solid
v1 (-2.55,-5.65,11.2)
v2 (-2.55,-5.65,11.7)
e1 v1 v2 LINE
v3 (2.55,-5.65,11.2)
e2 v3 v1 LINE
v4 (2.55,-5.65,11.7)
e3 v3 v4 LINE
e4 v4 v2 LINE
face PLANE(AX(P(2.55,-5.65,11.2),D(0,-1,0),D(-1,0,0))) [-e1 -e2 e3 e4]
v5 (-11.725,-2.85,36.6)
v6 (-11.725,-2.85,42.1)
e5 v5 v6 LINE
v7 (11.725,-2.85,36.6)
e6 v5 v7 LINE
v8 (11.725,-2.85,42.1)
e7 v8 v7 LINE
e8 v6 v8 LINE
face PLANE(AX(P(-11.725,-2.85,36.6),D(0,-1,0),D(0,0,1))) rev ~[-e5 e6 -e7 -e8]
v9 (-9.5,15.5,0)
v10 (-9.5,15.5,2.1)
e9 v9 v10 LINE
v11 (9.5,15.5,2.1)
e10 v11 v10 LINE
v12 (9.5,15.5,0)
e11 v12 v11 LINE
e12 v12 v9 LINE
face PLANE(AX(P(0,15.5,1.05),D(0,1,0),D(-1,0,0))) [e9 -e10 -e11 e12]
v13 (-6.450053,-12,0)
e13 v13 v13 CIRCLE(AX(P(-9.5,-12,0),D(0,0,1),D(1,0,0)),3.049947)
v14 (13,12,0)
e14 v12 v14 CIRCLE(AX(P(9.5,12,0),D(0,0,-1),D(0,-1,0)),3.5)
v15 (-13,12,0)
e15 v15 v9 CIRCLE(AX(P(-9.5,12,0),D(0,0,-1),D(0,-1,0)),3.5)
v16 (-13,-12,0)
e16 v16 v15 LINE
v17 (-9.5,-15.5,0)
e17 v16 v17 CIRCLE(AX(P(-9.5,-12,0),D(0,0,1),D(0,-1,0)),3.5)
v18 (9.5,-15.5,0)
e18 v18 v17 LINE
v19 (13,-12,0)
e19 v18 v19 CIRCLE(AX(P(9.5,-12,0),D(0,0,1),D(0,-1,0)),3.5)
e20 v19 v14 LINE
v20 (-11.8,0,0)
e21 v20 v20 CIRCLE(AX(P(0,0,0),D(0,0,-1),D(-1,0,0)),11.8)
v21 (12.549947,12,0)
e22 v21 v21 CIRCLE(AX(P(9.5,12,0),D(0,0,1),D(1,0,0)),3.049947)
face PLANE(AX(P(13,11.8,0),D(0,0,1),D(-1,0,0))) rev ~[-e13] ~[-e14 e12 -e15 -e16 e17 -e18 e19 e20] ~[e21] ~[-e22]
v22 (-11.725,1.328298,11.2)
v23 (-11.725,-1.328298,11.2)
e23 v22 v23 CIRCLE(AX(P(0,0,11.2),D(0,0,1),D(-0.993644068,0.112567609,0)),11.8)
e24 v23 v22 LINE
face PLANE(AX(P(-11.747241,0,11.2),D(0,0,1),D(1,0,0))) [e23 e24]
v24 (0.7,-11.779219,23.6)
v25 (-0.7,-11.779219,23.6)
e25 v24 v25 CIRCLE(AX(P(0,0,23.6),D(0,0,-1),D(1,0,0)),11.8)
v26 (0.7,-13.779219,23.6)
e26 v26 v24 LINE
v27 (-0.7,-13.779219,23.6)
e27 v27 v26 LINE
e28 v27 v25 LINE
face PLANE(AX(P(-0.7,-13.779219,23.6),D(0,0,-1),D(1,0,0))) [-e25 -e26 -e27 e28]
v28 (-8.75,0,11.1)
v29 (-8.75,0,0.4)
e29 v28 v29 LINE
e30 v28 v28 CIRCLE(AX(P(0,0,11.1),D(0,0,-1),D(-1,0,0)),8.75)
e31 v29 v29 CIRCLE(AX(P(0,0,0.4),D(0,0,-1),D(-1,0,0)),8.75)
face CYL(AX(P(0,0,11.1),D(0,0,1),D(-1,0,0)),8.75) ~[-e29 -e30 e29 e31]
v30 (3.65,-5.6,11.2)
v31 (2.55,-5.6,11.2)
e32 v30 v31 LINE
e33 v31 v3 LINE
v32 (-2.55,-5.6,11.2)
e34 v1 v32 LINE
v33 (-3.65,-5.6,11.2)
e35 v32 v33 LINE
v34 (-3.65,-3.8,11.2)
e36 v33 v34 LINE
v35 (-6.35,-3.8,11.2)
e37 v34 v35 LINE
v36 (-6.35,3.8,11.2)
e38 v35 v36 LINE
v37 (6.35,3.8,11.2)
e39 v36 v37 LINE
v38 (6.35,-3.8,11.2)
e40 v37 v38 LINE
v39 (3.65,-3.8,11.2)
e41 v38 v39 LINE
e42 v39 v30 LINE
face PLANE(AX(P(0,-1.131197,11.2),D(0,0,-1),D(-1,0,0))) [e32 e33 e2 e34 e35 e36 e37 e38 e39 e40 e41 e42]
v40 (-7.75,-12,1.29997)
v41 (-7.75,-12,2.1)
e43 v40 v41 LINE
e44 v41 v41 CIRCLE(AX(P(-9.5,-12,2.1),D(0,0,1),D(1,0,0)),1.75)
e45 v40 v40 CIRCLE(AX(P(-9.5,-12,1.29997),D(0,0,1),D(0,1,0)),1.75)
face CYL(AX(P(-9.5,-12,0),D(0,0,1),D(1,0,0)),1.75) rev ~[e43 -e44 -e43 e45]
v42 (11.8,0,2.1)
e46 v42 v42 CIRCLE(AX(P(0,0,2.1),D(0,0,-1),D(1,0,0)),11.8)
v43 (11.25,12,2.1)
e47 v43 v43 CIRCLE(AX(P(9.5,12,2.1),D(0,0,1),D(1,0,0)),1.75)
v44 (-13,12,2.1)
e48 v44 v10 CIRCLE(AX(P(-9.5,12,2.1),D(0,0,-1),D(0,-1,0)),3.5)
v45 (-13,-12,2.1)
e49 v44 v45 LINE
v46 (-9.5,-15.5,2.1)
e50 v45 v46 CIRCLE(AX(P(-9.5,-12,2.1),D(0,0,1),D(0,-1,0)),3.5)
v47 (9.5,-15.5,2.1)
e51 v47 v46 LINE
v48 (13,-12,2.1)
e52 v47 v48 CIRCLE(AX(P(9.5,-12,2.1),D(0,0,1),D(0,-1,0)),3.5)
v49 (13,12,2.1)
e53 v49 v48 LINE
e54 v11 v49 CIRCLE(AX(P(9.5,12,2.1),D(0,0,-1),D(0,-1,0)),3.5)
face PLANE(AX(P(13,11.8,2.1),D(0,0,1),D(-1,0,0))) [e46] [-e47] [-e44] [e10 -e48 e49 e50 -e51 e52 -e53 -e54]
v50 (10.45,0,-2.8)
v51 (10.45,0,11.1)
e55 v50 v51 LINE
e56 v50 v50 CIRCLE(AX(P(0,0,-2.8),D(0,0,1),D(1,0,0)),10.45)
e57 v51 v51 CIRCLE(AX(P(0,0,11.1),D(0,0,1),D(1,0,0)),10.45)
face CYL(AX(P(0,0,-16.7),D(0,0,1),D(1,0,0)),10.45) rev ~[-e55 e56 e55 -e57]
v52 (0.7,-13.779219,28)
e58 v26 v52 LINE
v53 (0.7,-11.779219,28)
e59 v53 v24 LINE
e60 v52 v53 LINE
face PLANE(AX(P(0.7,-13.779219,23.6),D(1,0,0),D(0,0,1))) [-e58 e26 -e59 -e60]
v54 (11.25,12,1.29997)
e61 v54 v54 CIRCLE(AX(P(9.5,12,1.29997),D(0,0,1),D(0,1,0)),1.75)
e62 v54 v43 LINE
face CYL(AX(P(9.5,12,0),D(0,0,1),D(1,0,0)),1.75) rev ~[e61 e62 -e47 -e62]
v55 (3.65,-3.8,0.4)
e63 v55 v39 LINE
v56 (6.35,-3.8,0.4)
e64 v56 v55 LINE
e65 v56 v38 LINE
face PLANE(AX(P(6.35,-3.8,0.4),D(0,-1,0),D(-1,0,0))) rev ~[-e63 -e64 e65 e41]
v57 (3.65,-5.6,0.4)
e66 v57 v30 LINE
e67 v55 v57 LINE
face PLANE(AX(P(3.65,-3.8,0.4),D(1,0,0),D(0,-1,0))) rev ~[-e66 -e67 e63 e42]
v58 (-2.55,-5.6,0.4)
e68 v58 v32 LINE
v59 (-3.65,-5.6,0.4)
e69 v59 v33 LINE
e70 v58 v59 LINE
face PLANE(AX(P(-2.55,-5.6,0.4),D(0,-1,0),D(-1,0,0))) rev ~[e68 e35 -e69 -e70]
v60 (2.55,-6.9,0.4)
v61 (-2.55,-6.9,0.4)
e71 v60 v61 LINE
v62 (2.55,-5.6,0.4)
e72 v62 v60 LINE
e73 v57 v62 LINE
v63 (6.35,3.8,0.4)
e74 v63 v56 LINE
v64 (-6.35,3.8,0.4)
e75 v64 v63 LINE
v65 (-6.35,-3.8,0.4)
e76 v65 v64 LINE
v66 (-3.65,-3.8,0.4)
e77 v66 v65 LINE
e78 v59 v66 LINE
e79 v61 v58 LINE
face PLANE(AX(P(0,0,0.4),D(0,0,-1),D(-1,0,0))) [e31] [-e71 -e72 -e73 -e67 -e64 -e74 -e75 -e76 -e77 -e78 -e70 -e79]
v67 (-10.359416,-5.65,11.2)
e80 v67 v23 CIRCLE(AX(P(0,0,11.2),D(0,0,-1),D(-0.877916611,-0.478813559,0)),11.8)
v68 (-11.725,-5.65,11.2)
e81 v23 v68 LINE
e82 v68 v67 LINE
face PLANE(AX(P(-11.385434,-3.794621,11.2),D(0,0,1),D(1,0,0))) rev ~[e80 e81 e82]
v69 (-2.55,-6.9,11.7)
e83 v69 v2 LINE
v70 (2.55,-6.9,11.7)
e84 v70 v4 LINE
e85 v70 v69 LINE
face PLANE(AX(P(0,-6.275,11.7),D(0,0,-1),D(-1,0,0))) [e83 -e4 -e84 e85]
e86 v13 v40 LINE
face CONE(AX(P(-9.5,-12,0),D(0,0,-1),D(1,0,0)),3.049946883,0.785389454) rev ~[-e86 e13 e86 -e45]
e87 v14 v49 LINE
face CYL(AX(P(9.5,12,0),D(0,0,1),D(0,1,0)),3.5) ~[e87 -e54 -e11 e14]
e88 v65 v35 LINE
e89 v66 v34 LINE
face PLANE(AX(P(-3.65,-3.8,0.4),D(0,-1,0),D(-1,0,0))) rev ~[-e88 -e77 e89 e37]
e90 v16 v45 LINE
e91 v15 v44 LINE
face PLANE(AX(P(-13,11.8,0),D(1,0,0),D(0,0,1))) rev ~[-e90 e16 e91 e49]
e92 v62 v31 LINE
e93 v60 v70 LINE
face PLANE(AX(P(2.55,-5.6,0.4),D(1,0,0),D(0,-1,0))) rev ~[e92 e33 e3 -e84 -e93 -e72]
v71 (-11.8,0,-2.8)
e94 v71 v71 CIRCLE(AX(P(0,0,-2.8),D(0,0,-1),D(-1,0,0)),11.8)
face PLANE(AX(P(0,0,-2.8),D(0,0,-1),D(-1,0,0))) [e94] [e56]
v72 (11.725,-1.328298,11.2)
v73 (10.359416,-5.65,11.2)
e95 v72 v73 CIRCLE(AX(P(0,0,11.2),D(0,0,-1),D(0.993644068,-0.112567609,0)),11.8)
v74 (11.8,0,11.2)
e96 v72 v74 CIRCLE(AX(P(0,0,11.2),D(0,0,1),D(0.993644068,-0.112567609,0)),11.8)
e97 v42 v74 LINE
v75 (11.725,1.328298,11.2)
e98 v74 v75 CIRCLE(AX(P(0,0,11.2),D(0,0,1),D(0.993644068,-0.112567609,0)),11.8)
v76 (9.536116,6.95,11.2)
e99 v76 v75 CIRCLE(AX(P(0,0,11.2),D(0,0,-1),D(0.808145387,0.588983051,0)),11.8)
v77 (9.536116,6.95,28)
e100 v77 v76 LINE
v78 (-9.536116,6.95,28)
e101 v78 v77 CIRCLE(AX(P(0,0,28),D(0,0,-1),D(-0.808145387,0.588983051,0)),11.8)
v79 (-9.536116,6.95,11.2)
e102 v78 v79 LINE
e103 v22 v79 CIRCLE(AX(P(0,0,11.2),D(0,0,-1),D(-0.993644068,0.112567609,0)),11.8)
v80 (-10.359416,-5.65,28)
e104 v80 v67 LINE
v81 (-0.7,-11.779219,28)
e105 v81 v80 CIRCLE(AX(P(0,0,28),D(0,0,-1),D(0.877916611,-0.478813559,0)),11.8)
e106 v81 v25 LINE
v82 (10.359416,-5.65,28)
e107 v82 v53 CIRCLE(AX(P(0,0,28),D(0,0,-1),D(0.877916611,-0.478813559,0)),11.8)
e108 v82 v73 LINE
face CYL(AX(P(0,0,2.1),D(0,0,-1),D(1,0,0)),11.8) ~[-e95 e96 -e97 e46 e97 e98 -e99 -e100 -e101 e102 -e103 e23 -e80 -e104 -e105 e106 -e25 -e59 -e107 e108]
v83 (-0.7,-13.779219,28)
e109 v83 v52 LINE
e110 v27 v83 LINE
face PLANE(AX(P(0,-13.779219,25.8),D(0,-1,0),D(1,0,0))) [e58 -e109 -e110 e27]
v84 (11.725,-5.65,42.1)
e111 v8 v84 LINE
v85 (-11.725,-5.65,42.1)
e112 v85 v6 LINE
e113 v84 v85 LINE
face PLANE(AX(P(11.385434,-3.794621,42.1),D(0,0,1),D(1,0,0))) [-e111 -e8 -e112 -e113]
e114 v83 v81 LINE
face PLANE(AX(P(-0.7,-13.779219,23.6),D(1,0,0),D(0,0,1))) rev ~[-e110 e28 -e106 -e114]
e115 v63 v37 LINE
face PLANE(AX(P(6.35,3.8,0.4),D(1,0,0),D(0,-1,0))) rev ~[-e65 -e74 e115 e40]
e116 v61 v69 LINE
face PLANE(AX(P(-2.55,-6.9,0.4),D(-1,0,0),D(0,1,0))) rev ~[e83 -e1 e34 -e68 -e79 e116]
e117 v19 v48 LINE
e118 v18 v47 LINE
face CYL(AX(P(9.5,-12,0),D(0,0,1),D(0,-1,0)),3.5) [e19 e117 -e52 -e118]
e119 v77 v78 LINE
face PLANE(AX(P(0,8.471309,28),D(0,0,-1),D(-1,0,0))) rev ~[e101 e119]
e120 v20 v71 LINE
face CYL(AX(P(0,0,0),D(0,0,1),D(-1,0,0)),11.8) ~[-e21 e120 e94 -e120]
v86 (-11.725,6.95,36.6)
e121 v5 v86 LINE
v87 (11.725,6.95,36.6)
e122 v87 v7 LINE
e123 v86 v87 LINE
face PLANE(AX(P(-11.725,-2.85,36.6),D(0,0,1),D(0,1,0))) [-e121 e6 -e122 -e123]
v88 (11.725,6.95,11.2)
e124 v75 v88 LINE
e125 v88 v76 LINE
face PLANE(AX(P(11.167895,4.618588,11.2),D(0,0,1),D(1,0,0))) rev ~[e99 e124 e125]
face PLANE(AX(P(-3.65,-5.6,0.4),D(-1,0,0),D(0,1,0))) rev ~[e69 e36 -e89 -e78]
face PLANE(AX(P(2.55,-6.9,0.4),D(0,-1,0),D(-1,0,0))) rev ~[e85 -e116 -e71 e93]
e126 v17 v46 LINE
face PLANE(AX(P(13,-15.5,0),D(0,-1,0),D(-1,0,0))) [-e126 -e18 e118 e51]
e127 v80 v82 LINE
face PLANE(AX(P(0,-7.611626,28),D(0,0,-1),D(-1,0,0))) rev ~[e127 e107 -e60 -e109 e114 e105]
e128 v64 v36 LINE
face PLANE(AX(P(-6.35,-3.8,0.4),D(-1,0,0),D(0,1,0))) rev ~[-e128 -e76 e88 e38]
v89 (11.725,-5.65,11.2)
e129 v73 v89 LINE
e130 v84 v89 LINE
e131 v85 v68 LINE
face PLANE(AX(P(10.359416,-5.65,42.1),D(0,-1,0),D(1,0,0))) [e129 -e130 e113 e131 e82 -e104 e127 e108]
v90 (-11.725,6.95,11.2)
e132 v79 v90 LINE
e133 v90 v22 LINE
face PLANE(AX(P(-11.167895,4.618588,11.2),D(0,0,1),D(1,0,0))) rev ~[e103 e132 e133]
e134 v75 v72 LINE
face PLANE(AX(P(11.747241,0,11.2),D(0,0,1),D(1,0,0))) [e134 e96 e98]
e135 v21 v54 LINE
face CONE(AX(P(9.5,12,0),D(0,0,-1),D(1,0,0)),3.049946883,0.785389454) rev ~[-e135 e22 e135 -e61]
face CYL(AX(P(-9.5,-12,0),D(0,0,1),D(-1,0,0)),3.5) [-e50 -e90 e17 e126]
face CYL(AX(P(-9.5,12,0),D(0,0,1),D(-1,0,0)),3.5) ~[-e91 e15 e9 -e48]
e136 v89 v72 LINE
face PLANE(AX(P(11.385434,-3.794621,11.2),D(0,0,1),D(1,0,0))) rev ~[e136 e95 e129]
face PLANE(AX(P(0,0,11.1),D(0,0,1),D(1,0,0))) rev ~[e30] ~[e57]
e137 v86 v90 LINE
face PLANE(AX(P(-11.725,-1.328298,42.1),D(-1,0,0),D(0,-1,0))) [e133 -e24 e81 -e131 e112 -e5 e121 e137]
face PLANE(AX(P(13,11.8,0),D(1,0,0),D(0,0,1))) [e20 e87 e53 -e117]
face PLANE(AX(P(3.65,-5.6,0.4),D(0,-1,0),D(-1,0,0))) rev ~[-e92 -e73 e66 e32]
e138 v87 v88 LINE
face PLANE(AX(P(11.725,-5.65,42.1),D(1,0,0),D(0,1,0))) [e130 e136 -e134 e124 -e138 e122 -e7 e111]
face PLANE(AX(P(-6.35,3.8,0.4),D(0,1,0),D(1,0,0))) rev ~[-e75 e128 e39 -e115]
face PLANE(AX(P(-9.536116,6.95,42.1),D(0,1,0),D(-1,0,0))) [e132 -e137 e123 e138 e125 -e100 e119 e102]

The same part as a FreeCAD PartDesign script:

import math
import FreeCAD as App
import Part
import Sketcher
Q = App.Units.Quantity


def edges_at(feature, points):
    """Names of the edges that pass closest to the given points."""
    edges = feature.Shape.Edges
    near = lambda p: min(range(len(edges)), key=lambda i: edges[i].distToShape(Part.Vertex(*p))[0])
    return sorted({f"Edge{near(p) + 1}" for p in points})

doc = App.newDocument("Part")
body = doc.addObject("PartDesign::Body", "Body")

# Sketch on XY plane
sketch1 = body.newObject("Sketcher::SketchObject", "Sketch")
sketch1.AttachmentSupport = (doc.getObject("XY_Plane"), [""])
sketch1.MapMode = "FlatFace"
sketch1.addGeometry(Part.LineSegment(App.Vector(13, 12, 0), App.Vector(13, -16, 0)), False)
sketch1.addGeometry(Part.LineSegment(App.Vector(13, -16, 0), App.Vector(-13, -16, 0)), False)
sketch1.addGeometry(Part.LineSegment(App.Vector(-13, -16, 0), App.Vector(-13, 12, 0)), False)
sketch1.addGeometry(Part.LineSegment(App.Vector(-13, 12, 0), App.Vector(13, 12, 0)), False)
sketch1.addConstraint(Sketcher.Constraint("Coincident", 0, 2, 1, 1))
sketch1.addConstraint(Sketcher.Constraint("Coincident", 1, 2, 2, 1))
sketch1.addConstraint(Sketcher.Constraint("Coincident", 2, 2, 3, 1))
sketch1.addConstraint(Sketcher.Constraint("Coincident", 3, 2, 0, 1))
sketch1.addConstraint(Sketcher.Constraint("Vertical", 0))
sketch1.addConstraint(Sketcher.Constraint("Horizontal", 1))
sketch1.addConstraint(Sketcher.Constraint("Vertical", 2))
sketch1.addConstraint(Sketcher.Constraint("Horizontal", 3))
sketch1.addConstraint(Sketcher.Constraint("DistanceX", 1, 2, 1, 1, Q("26 mm")))
sketch1.addConstraint(Sketcher.Constraint("DistanceY", 0, 2, 0, 1, Q("27.3 mm")))
sketch1.addConstraint(Sketcher.Constraint("DistanceX", -1, 1, 0, 2, Q("13 mm")))
sketch1.addConstraint(Sketcher.Constraint("DistanceY", 0, 2, -1, 1, Q("15.5 mm")))
pad1 = body.newObject("PartDesign::Pad", "Pad")
pad1.Profile = sketch1
pad1.Length = 2.1

# Sketch on XY plane
sketch2 = body.newObject("Sketcher::SketchObject", "Sketch001")
sketch2.AttachmentSupport = (doc.getObject("XY_Plane"), [""])
sketch2.MapMode = "FlatFace"
sketch2.AttachmentOffset = App.Placement(App.Vector(0, 0, 2.1), App.Rotation())
sketch2.addGeometry(Part.Circle(App.Vector(0, 0, 0), App.Vector(0, 0, 1), 12), False)
sketch2.addConstraint(Sketcher.Constraint("Coincident", 0, 3, -1, 1))
sketch2.addConstraint(Sketcher.Constraint("Diameter", 0, Q("23.6 mm")))
pad2 = body.newObject("PartDesign::Pad", "Pad001")
pad2.Profile = sketch2
pad2.Length = 40

# Sketch on XZ plane
sketch3 = body.newObject("Sketcher::SketchObject", "Sketch002")
sketch3.AttachmentSupport = (doc.getObject("XZ_Plane"), [""])
sketch3.MapMode = "FlatFace"
sketch3.AttachmentOffset = App.Placement(App.Vector(0, 0, -11.8), App.Rotation())
sketch3.addGeometry(Part.LineSegment(App.Vector(13, 2.1, 0), App.Vector(13, 0, 0)), False)
sketch3.addGeometry(Part.LineSegment(App.Vector(13, 0, 0), App.Vector(-13, 0, 0)), False)
sketch3.addGeometry(Part.LineSegment(App.Vector(-13, 0, 0), App.Vector(-13, 2.1, 0)), False)
sketch3.addGeometry(Part.LineSegment(App.Vector(-13, 2.1, 0), App.Vector(13, 2.1, 0)), False)
sketch3.addConstraint(Sketcher.Constraint("Coincident", 0, 2, 1, 1))
sketch3.addConstraint(Sketcher.Constraint("Coincident", 1, 2, 2, 1))
sketch3.addConstraint(Sketcher.Constraint("Coincident", 2, 2, 3, 1))
sketch3.addConstraint(Sketcher.Constraint("Coincident", 3, 2, 0, 1))
sketch3.addConstraint(Sketcher.Constraint("Vertical", 0))
sketch3.addConstraint(Sketcher.Constraint("Horizontal", 1))
sketch3.addConstraint(Sketcher.Constraint("Vertical", 2))
sketch3.addConstraint(Sketcher.Constraint("Horizontal", 3))
sketch3.addConstraint(Sketcher.Constraint("Symmetric", 0, 2, 1, 2, -1, 1))
sketch3.addConstraint(Sketcher.Constraint("DistanceX", 1, 2, 1, 1, Q("26 mm")))
sketch3.addConstraint(Sketcher.Constraint("DistanceY", 0, 2, 0, 1, Q("2.1 mm")))
pad3 = body.newObject("PartDesign::Pad", "Pad002")
pad3.Profile = sketch3
pad3.Length = 3.7
pad3.Reversed = True

# Sketch on XY plane
sketch4 = body.newObject("Sketcher::SketchObject", "Sketch003")
sketch4.AttachmentSupport = (doc.getObject("XY_Plane"), [""])
sketch4.MapMode = "FlatFace"
sketch4.addGeometry(Part.Circle(App.Vector(0, 0, 0), App.Vector(0, 0, 1), 12), False)
sketch4.addConstraint(Sketcher.Constraint("Coincident", 0, 3, -1, 1))
sketch4.addConstraint(Sketcher.Constraint("Diameter", 0, Q("23.6 mm")))
pad4 = body.newObject("PartDesign::Pad", "Pad003")
pad4.Profile = sketch4
pad4.Length = 2.8
pad4.Reversed = True

# Sketch on XY plane
sketch5 = body.newObject("Sketcher::SketchObject", "Sketch004")
sketch5.AttachmentSupport = (doc.getObject("XY_Plane"), [""])
sketch5.MapMode = "FlatFace"
sketch5.AttachmentOffset = App.Placement(App.Vector(0, 0, -2.8), App.Rotation())
sketch5.addGeometry(Part.Circle(App.Vector(0, 0, 0), App.Vector(0, 0, 1), 10), False)
sketch5.addConstraint(Sketcher.Constraint("Coincident", 0, 3, -1, 1))
sketch5.addConstraint(Sketcher.Constraint("Diameter", 0, Q("20.9 mm")))
doc.recompute()
hole = body.newObject("PartDesign::Hole", "Hole")
hole.Profile = sketch5
hole.ThreadType = "None"
hole.Diameter = 20.9
hole.DepthType = "Dimension"
hole.Depth = 13.9
hole.DrillPoint = "Flat"
hole.Reversed = True

# Sketch on XY plane
sketch6 = body.newObject("Sketcher::SketchObject", "Sketch005")
sketch6.AttachmentSupport = (doc.getObject("XY_Plane"), [""])
sketch6.MapMode = "FlatFace"
sketch6.AttachmentOffset = App.Placement(App.Vector(0, 0, 11.1), App.Rotation())
sketch6.addGeometry(Part.Circle(App.Vector(0, 0, 0), App.Vector(0, 0, 1), 9), False)
sketch6.addConstraint(Sketcher.Constraint("Coincident", 0, 3, -1, 1))
sketch6.addConstraint(Sketcher.Constraint("Diameter", 0, Q("17.5 mm")))
pad5 = body.newObject("PartDesign::Pad", "Pad004")
pad5.Profile = sketch6
pad5.Length = 10.7
pad5.Reversed = True

# Sketch on XY plane
sketch7 = body.newObject("Sketcher::SketchObject", "Sketch006")
sketch7.AttachmentSupport = (doc.getObject("XY_Plane"), [""])
sketch7.MapMode = "FlatFace"
sketch7.AttachmentOffset = App.Placement(App.Vector(0, 0, 0.4), App.Rotation())
sketch7.addGeometry(Part.LineSegment(App.Vector(-6.3, -3.8, 0), App.Vector(-6.3, 3.8, 0)), False)
sketch7.addGeometry(Part.LineSegment(App.Vector(-6.3, 3.8, 0), App.Vector(6.3, 3.8, 0)), False)
sketch7.addGeometry(Part.LineSegment(App.Vector(6.3, 3.8, 0), App.Vector(6.3, -3.8, 0)), False)
sketch7.addGeometry(Part.LineSegment(App.Vector(6.3, -3.8, 0), App.Vector(3.6, -3.8, 0)), False)
sketch7.addGeometry(Part.LineSegment(App.Vector(3.6, -3.8, 0), App.Vector(3.6, -5.6, 0)), False)
sketch7.addGeometry(Part.LineSegment(App.Vector(3.6, -5.6, 0), App.Vector(2.5, -5.6, 0)), False)
sketch7.addGeometry(Part.LineSegment(App.Vector(2.5, -5.6, 0), App.Vector(2.5, -6.9, 0)), False)
sketch7.addGeometry(Part.LineSegment(App.Vector(2.5, -6.9, 0), App.Vector(-2.5, -6.9, 0)), False)
sketch7.addGeometry(Part.LineSegment(App.Vector(-2.5, -6.9, 0), App.Vector(-2.5, -5.6, 0)), False)
sketch7.addGeometry(Part.LineSegment(App.Vector(-2.5, -5.6, 0), App.Vector(-3.6, -5.6, 0)), False)
sketch7.addGeometry(Part.LineSegment(App.Vector(-3.6, -5.6, 0), App.Vector(-3.6, -3.8, 0)), False)
sketch7.addGeometry(Part.LineSegment(App.Vector(-3.6, -3.8, 0), App.Vector(-6.3, -3.8, 0)), False)
sketch7.addConstraint(Sketcher.Constraint("Coincident", 0, 2, 1, 1))
sketch7.addConstraint(Sketcher.Constraint("Coincident", 1, 2, 2, 1))
sketch7.addConstraint(Sketcher.Constraint("Coincident", 2, 2, 3, 1))
sketch7.addConstraint(Sketcher.Constraint("Coincident", 3, 2, 4, 1))
sketch7.addConstraint(Sketcher.Constraint("Coincident", 4, 2, 5, 1))
sketch7.addConstraint(Sketcher.Constraint("Coincident", 5, 2, 6, 1))
sketch7.addConstraint(Sketcher.Constraint("Coincident", 6, 2, 7, 1))
sketch7.addConstraint(Sketcher.Constraint("Coincident", 7, 2, 8, 1))
sketch7.addConstraint(Sketcher.Constraint("Coincident", 8, 2, 9, 1))
sketch7.addConstraint(Sketcher.Constraint("Coincident", 9, 2, 10, 1))
sketch7.addConstraint(Sketcher.Constraint("Coincident", 10, 2, 11, 1))
sketch7.addConstraint(Sketcher.Constraint("Coincident", 11, 2, 0, 1))
sketch7.addConstraint(Sketcher.Constraint("Vertical", 0))
sketch7.addConstraint(Sketcher.Constraint("Horizontal", 1))
sketch7.addConstraint(Sketcher.Constraint("Vertical", 2))
sketch7.addConstraint(Sketcher.Constraint("Horizontal", 3))
sketch7.addConstraint(Sketcher.Constraint("Vertical", 4))
sketch7.addConstraint(Sketcher.Constraint("Horizontal", 5))
sketch7.addConstraint(Sketcher.Constraint("Vertical", 6))
sketch7.addConstraint(Sketcher.Constraint("Horizontal", 7))
sketch7.addConstraint(Sketcher.Constraint("Vertical", 8))
sketch7.addConstraint(Sketcher.Constraint("Horizontal", 9))
sketch7.addConstraint(Sketcher.Constraint("Vertical", 10))
sketch7.addConstraint(Sketcher.Constraint("Horizontal", 11))
sketch7.addConstraint(Sketcher.Constraint("Symmetric", 0, 2, 2, 2, -1, 1))
sketch7.addConstraint(Sketcher.Constraint("Symmetric", 5, 2, 8, 2, -2))
sketch7.addConstraint(Sketcher.Constraint("Symmetric", 3, 2, 10, 2, -2))
sketch7.addConstraint(Sketcher.Constraint("DistanceX", 1, 1, 1, 2, Q("12.7 mm")))
sketch7.addConstraint(Sketcher.Constraint("DistanceX", 3, 2, 3, 1, Q("2.7 mm")))
sketch7.addConstraint(Sketcher.Constraint("DistanceX", 5, 2, 5, 1, Q("1.1 mm")))
sketch7.addConstraint(Sketcher.Constraint("DistanceY", 0, 1, 0, 2, Q("7.6 mm")))
sketch7.addConstraint(Sketcher.Constraint("DistanceY", 4, 2, 4, 1, Q("1.8 mm")))
sketch7.addConstraint(Sketcher.Constraint("DistanceY", 6, 2, 6, 1, Q("1.3 mm")))
pocket1 = body.newObject("PartDesign::Pocket", "Pocket")
pocket1.Profile = sketch7
pocket1.Length = 10.8
pocket1.Reversed = True

# Sketch on XY plane
sketch8 = body.newObject("Sketcher::SketchObject", "Sketch007")
sketch8.AttachmentSupport = (doc.getObject("XY_Plane"), [""])
sketch8.MapMode = "FlatFace"
sketch8.AttachmentOffset = App.Placement(App.Vector(0, 0, 11.2), App.Rotation())
sketch8.addGeometry(Part.LineSegment(App.Vector(2.5, -5.7, 0), App.Vector(2.5, -6.9, 0)), False)
sketch8.addGeometry(Part.LineSegment(App.Vector(2.5, -6.9, 0), App.Vector(-2.5, -6.9, 0)), False)
sketch8.addGeometry(Part.LineSegment(App.Vector(-2.5, -6.9, 0), App.Vector(-2.5, -5.7, 0)), False)
sketch8.addGeometry(Part.LineSegment(App.Vector(-2.5, -5.7, 0), App.Vector(2.5, -5.7, 0)), False)
sketch8.addConstraint(Sketcher.Constraint("Coincident", 0, 2, 1, 1))
sketch8.addConstraint(Sketcher.Constraint("Coincident", 1, 2, 2, 1))
sketch8.addConstraint(Sketcher.Constraint("Coincident", 2, 2, 3, 1))
sketch8.addConstraint(Sketcher.Constraint("Coincident", 3, 2, 0, 1))
sketch8.addConstraint(Sketcher.Constraint("Vertical", 0))
sketch8.addConstraint(Sketcher.Constraint("Horizontal", 1))
sketch8.addConstraint(Sketcher.Constraint("Vertical", 2))
sketch8.addConstraint(Sketcher.Constraint("Horizontal", 3))
sketch8.addConstraint(Sketcher.Constraint("DistanceX", 1, 2, 1, 1, Q("5.1 mm")))
sketch8.addConstraint(Sketcher.Constraint("DistanceY", 0, 2, 0, 1, Q("1.25 mm")))
sketch8.addConstraint(Sketcher.Constraint("DistanceY", 0, 2, -1, 1, Q("6.9 mm")))
sketch8.addConstraint(Sketcher.Constraint("DistanceX", -1, 1, 0, 2, Q("2.55 mm")))
pocket2 = body.newObject("PartDesign::Pocket", "Pocket001")
pocket2.Profile = sketch8
pocket2.Length = 0.5
pocket2.Reversed = True

# Sketch on XY plane
sketch9 = body.newObject("Sketcher::SketchObject", "Sketch008")
sketch9.AttachmentSupport = (doc.getObject("XY_Plane"), [""])
sketch9.MapMode = "FlatFace"
sketch9.AttachmentOffset = App.Placement(App.Vector(0, 0, 42.1), App.Rotation())
sketch9.addGeometry(Part.LineSegment(App.Vector(-11.7, -1.3, 0), App.Vector(-11.7, 1.3, 0)), False)
sketch9.addGeometry(Part.ArcOfCircle(Part.Circle(App.Vector(0, 0, 0), App.Vector(0, 0, 1), 11.8), math.radians(173.54), math.radians(186.46)), False)
sketch9.addConstraint(Sketcher.Constraint("Coincident", 0, 1, 1, 2))
sketch9.addConstraint(Sketcher.Constraint("Coincident", 1, 1, 0, 2))
sketch9.addConstraint(Sketcher.Constraint("Vertical", 0))
sketch9.addConstraint(Sketcher.Constraint("Coincident", 1, 3, -1, 1))
sketch9.addConstraint(Sketcher.Constraint("Radius", 1, Q("11.8 mm")))
sketch9.addConstraint(Sketcher.Constraint("DistanceX", 0, 1, -1, 1, Q("11.725 mm")))
pocket3 = body.newObject("PartDesign::Pocket", "Pocket002")
pocket3.Profile = sketch9
pocket3.Length = 30.9

# Sketch on XY plane
sketch10 = body.newObject("Sketcher::SketchObject", "Sketch009")
sketch10.AttachmentSupport = (doc.getObject("XY_Plane"), [""])
sketch10.MapMode = "FlatFace"
sketch10.AttachmentOffset = App.Placement(App.Vector(0, 0, 42.1), App.Rotation())
sketch10.addGeometry(Part.LineSegment(App.Vector(-9.5, 7, 0), App.Vector(-11.7, 7, 0)), False)
sketch10.addGeometry(Part.LineSegment(App.Vector(-11.7, 7, 0), App.Vector(-11.7, 1.3, 0)), False)
sketch10.addGeometry(Part.ArcOfCircle(Part.Circle(App.Vector(0, 0, 0), App.Vector(0, 0, 1), 11.8), math.radians(144), math.radians(174)), False)
sketch10.addConstraint(Sketcher.Constraint("Coincident", 0, 2, 1, 1))
sketch10.addConstraint(Sketcher.Constraint("Coincident", 1, 2, 2, 2))
sketch10.addConstraint(Sketcher.Constraint("Coincident", 2, 1, 0, 1))
sketch10.addConstraint(Sketcher.Constraint("Horizontal", 0))
sketch10.addConstraint(Sketcher.Constraint("Vertical", 1))
sketch10.addConstraint(Sketcher.Constraint("Coincident", 2, 3, -1, 1))
sketch10.addConstraint(Sketcher.Constraint("Radius", 2, Q("11.8 mm")))
sketch10.addConstraint(Sketcher.Constraint("DistanceY", -1, 1, 0, 2, Q("6.95 mm")))
sketch10.addConstraint(Sketcher.Constraint("DistanceX", 0, 2, -1, 1, Q("11.725 mm")))
pad6 = body.newObject("PartDesign::Pad", "Pad005")
pad6.Profile = sketch10
pad6.Length = 30.9
pad6.Reversed = True

# Sketch on XY plane
sketch11 = body.newObject("Sketcher::SketchObject", "Sketch010")
sketch11.AttachmentSupport = (doc.getObject("XY_Plane"), [""])
sketch11.MapMode = "FlatFace"
sketch11.AttachmentOffset = App.Placement(App.Vector(0, 0, 42.1), App.Rotation())
sketch11.addGeometry(Part.LineSegment(App.Vector(11.7, 1.3, 0), App.Vector(11.7, -1.3, 0)), False)
sketch11.addGeometry(Part.ArcOfCircle(Part.Circle(App.Vector(0, 0, 0), App.Vector(0, 0, 1), 11.8), math.radians(-6.46), math.radians(6.46)), False)
sketch11.addConstraint(Sketcher.Constraint("Coincident", 0, 1, 1, 2))
sketch11.addConstraint(Sketcher.Constraint("Coincident", 1, 1, 0, 2))
sketch11.addConstraint(Sketcher.Constraint("Vertical", 0))
sketch11.addConstraint(Sketcher.Constraint("Coincident", 1, 3, -1, 1))
sketch11.addConstraint(Sketcher.Constraint("Radius", 1, Q("11.8 mm")))
sketch11.addConstraint(Sketcher.Constraint("DistanceX", -1, 1, 0, 1, Q("11.725 mm")))
pocket4 = body.newObject("PartDesign::Pocket", "Pocket003")
pocket4.Profile = sketch11
pocket4.Length = 30.9

# Sketch on XY plane
sketch12 = body.newObject("Sketcher::SketchObject", "Sketch011")
sketch12.AttachmentSupport = (doc.getObject("XY_Plane"), [""])
sketch12.MapMode = "FlatFace"
sketch12.AttachmentOffset = App.Placement(App.Vector(0, 0, 42.1), App.Rotation())
sketch12.addGeometry(Part.LineSegment(App.Vector(11.7, 1.3, 0), App.Vector(11.7, 7, 0)), False)
sketch12.addGeometry(Part.LineSegment(App.Vector(11.7, 7, 0), App.Vector(9.5, 7, 0)), False)
sketch12.addGeometry(Part.ArcOfCircle(Part.Circle(App.Vector(0, 0, 0), App.Vector(0, 0, 1), 11.8), math.radians(6), math.radians(36)), False)
sketch12.addConstraint(Sketcher.Constraint("Coincident", 0, 2, 1, 1))
sketch12.addConstraint(Sketcher.Constraint("Coincident", 1, 2, 2, 2))
sketch12.addConstraint(Sketcher.Constraint("Coincident", 2, 1, 0, 1))
sketch12.addConstraint(Sketcher.Constraint("Vertical", 0))
sketch12.addConstraint(Sketcher.Constraint("Horizontal", 1))
sketch12.addConstraint(Sketcher.Constraint("Coincident", 2, 3, -1, 1))
sketch12.addConstraint(Sketcher.Constraint("Radius", 2, Q("11.8 mm")))
sketch12.addConstraint(Sketcher.Constraint("DistanceY", -1, 1, 0, 2, Q("6.95 mm")))
sketch12.addConstraint(Sketcher.Constraint("DistanceX", -1, 1, 0, 2, Q("11.725 mm")))
pad7 = body.newObject("PartDesign::Pad", "Pad006")
pad7.Profile = sketch12
pad7.Length = 30.9
pad7.Reversed = True

# Sketch on XY plane
sketch13 = body.newObject("Sketcher::SketchObject", "Sketch012")
sketch13.AttachmentSupport = (doc.getObject("XY_Plane"), [""])
sketch13.MapMode = "FlatFace"
sketch13.AttachmentOffset = App.Placement(App.Vector(0, 0, 42.1), App.Rotation())
sketch13.addGeometry(Part.LineSegment(App.Vector(-11.7, -1.3, 0), App.Vector(-11.7, -5.7, 0)), False)
sketch13.addGeometry(Part.LineSegment(App.Vector(-11.7, -5.7, 0), App.Vector(-10.4, -5.7, 0)), False)
sketch13.addGeometry(Part.ArcOfCircle(Part.Circle(App.Vector(0, 0, 0), App.Vector(0, 0, 1), 11.8), math.radians(-174), math.radians(-151)), False)
sketch13.addConstraint(Sketcher.Constraint("Coincident", 0, 2, 1, 1))
sketch13.addConstraint(Sketcher.Constraint("Coincident", 1, 2, 2, 2))
sketch13.addConstraint(Sketcher.Constraint("Coincident", 2, 1, 0, 1))
sketch13.addConstraint(Sketcher.Constraint("Vertical", 0))
sketch13.addConstraint(Sketcher.Constraint("Horizontal", 1))
sketch13.addConstraint(Sketcher.Constraint("Coincident", 2, 3, -1, 1))
sketch13.addConstraint(Sketcher.Constraint("Radius", 2, Q("11.8 mm")))
sketch13.addConstraint(Sketcher.Constraint("DistanceY", 0, 2, -1, 1, Q("5.65 mm")))
sketch13.addConstraint(Sketcher.Constraint("DistanceX", 0, 2, -1, 1, Q("11.725 mm")))
pad8 = body.newObject("PartDesign::Pad", "Pad007")
pad8.Profile = sketch13
pad8.Length = 30.9
pad8.Reversed = True

# Sketch on XY plane
sketch14 = body.newObject("Sketcher::SketchObject", "Sketch013")
sketch14.AttachmentSupport = (doc.getObject("XY_Plane"), [""])
sketch14.MapMode = "FlatFace"
sketch14.AttachmentOffset = App.Placement(App.Vector(0, 0, 42.1), App.Rotation())
sketch14.addGeometry(Part.LineSegment(App.Vector(10.4, -5.7, 0), App.Vector(11.7, -5.7, 0)), False)
sketch14.addGeometry(Part.LineSegment(App.Vector(11.7, -5.7, 0), App.Vector(11.7, -1.3, 0)), False)
sketch14.addGeometry(Part.ArcOfCircle(Part.Circle(App.Vector(0, 0, 0), App.Vector(0, 0, 1), 11.8), math.radians(-29), math.radians(-6)), False)
sketch14.addConstraint(Sketcher.Constraint("Coincident", 0, 2, 1, 1))
sketch14.addConstraint(Sketcher.Constraint("Coincident", 1, 2, 2, 2))
sketch14.addConstraint(Sketcher.Constraint("Coincident", 2, 1, 0, 1))
sketch14.addConstraint(Sketcher.Constraint("Horizontal", 0))
sketch14.addConstraint(Sketcher.Constraint("Vertical", 1))
sketch14.addConstraint(Sketcher.Constraint("Coincident", 2, 3, -1, 1))
sketch14.addConstraint(Sketcher.Constraint("Radius", 2, Q("11.8 mm")))
sketch14.addConstraint(Sketcher.Constraint("DistanceY", 0, 2, -1, 1, Q("5.65 mm")))
sketch14.addConstraint(Sketcher.Constraint("DistanceX", -1, 1, 0, 2, Q("11.725 mm")))
pad9 = body.newObject("PartDesign::Pad", "Pad008")
pad9.Profile = sketch14
pad9.Length = 30.9
pad9.Reversed = True

# Sketch on XY plane
sketch15 = body.newObject("Sketcher::SketchObject", "Sketch014")
sketch15.AttachmentSupport = (doc.getObject("XY_Plane"), [""])
sketch15.MapMode = "FlatFace"
sketch15.AttachmentOffset = App.Placement(App.Vector(0, 0, 28), App.Rotation())
sketch15.addGeometry(Part.LineSegment(App.Vector(10, 7, 0), App.Vector(-10, 7, 0)), False)
sketch15.addGeometry(Part.ArcOfCircle(Part.Circle(App.Vector(0, 0, 0), App.Vector(0, 0, 1), 12), math.radians(36), math.radians(144)), False)
sketch15.addConstraint(Sketcher.Constraint("Coincident", 0, 1, 1, 1))
sketch15.addConstraint(Sketcher.Constraint("Coincident", 1, 2, 0, 2))
sketch15.addConstraint(Sketcher.Constraint("Horizontal", 0))
sketch15.addConstraint(Sketcher.Constraint("Coincident", 1, 3, -1, 1))
sketch15.addConstraint(Sketcher.Constraint("Radius", 1, Q("11.8 mm")))
sketch15.addConstraint(Sketcher.Constraint("DistanceY", -1, 1, 0, 1, Q("6.95 mm")))
pocket5 = body.newObject("PartDesign::Pocket", "Pocket004")
pocket5.Profile = sketch15
pocket5.Type = "UpToFirst"
pocket5.Reversed = True

# Sketch on XY plane
sketch16 = body.newObject("Sketcher::SketchObject", "Sketch015")
sketch16.AttachmentSupport = (doc.getObject("XY_Plane"), [""])
sketch16.MapMode = "FlatFace"
sketch16.AttachmentOffset = App.Placement(App.Vector(0, 0, 28), App.Rotation())
sketch16.addGeometry(Part.LineSegment(App.Vector(-10, -6, 0), App.Vector(10, -6, 0)), False)
sketch16.addGeometry(Part.ArcOfCircle(Part.Circle(App.Vector(0, 0, 0), App.Vector(0, 0, 1), 12), math.radians(-151), math.radians(-29)), False)
sketch16.addConstraint(Sketcher.Constraint("Coincident", 0, 1, 1, 1))
sketch16.addConstraint(Sketcher.Constraint("Coincident", 1, 2, 0, 2))
sketch16.addConstraint(Sketcher.Constraint("Horizontal", 0))
sketch16.addConstraint(Sketcher.Constraint("Coincident", 1, 3, -1, 1))
sketch16.addConstraint(Sketcher.Constraint("Radius", 1, Q("11.8 mm")))
sketch16.addConstraint(Sketcher.Constraint("DistanceY", 0, 1, -1, 1, Q("5.65 mm")))
pocket6 = body.newObject("PartDesign::Pocket", "Pocket005")
pocket6.Profile = sketch16
pocket6.Type = "UpToFirst"
pocket6.Reversed = True

# Sketch on YZ plane
sketch17 = body.newObject("Sketcher::SketchObject", "Sketch016")
sketch17.AttachmentSupport = (doc.getObject("YZ_Plane"), [""])
sketch17.MapMode = "FlatFace"
sketch17.AttachmentOffset = App.Placement(App.Vector(0, 0, -11.725), App.Rotation())
sketch17.addGeometry(Part.LineSegment(App.Vector(7, 37, 0), App.Vector(-3, 37, 0)), False)
sketch17.addGeometry(Part.LineSegment(App.Vector(-3, 37, 0), App.Vector(-3, 42, 0)), False)
sketch17.addGeometry(Part.LineSegment(App.Vector(-3, 42, 0), App.Vector(7, 42, 0)), False)
sketch17.addGeometry(Part.LineSegment(App.Vector(7, 42, 0), App.Vector(7, 37, 0)), False)
sketch17.addConstraint(Sketcher.Constraint("Coincident", 0, 2, 1, 1))
sketch17.addConstraint(Sketcher.Constraint("Coincident", 1, 2, 2, 1))
sketch17.addConstraint(Sketcher.Constraint("Coincident", 2, 2, 3, 1))
sketch17.addConstraint(Sketcher.Constraint("Coincident", 3, 2, 0, 1))
sketch17.addConstraint(Sketcher.Constraint("Horizontal", 0))
sketch17.addConstraint(Sketcher.Constraint("Vertical", 1))
sketch17.addConstraint(Sketcher.Constraint("Horizontal", 2))
sketch17.addConstraint(Sketcher.Constraint("Vertical", 3))
sketch17.addConstraint(Sketcher.Constraint("DistanceX", 0, 2, 0, 1, Q("9.8 mm")))
sketch17.addConstraint(Sketcher.Constraint("DistanceY", 1, 1, 1, 2, Q("5.5 mm")))
sketch17.addConstraint(Sketcher.Constraint("DistanceY", -1, 1, 0, 2, Q("36.6 mm")))
sketch17.addConstraint(Sketcher.Constraint("DistanceX", 0, 2, -1, 1, Q("2.85 mm")))
pocket7 = body.newObject("PartDesign::Pocket", "Pocket006")
pocket7.Profile = sketch17
pocket7.Type = "ThroughAll"
pocket7.Reversed = True

# Sketch on XZ plane
sketch18 = body.newObject("Sketcher::SketchObject", "Sketch017")
sketch18.AttachmentSupport = (doc.getObject("XZ_Plane"), [""])
sketch18.MapMode = "FlatFace"
sketch18.AttachmentOffset = App.Placement(App.Vector(0, 0, 13.779219), App.Rotation())
sketch18.addGeometry(Part.LineSegment(App.Vector(-0.7, 28, 0), App.Vector(-0.7, 23.6, 0)), False)
sketch18.addGeometry(Part.LineSegment(App.Vector(-0.7, 23.6, 0), App.Vector(0.7, 23.6, 0)), False)
sketch18.addGeometry(Part.LineSegment(App.Vector(0.7, 23.6, 0), App.Vector(0.7, 28, 0)), False)
sketch18.addGeometry(Part.LineSegment(App.Vector(0.7, 28, 0), App.Vector(-0.7, 28, 0)), False)
sketch18.addConstraint(Sketcher.Constraint("Coincident", 0, 2, 1, 1))
sketch18.addConstraint(Sketcher.Constraint("Coincident", 1, 2, 2, 1))
sketch18.addConstraint(Sketcher.Constraint("Coincident", 2, 2, 3, 1))
sketch18.addConstraint(Sketcher.Constraint("Coincident", 3, 2, 0, 1))
sketch18.addConstraint(Sketcher.Constraint("Vertical", 0))
sketch18.addConstraint(Sketcher.Constraint("Horizontal", 1))
sketch18.addConstraint(Sketcher.Constraint("Vertical", 2))
sketch18.addConstraint(Sketcher.Constraint("Horizontal", 3))
sketch18.addConstraint(Sketcher.Constraint("DistanceX", 1, 1, 1, 2, Q("1.4 mm")))
sketch18.addConstraint(Sketcher.Constraint("DistanceY", 0, 2, 0, 1, Q("4.4 mm")))
sketch18.addConstraint(Sketcher.Constraint("DistanceY", -1, 1, 2, 2, Q("28 mm")))
sketch18.addConstraint(Sketcher.Constraint("DistanceX", 0, 2, -1, 1, Q("0.7 mm")))
pad10 = body.newObject("PartDesign::Pad", "Pad009")
pad10.Profile = sketch18
pad10.Type = "UpToFirst"
pad10.Reversed = True

# Sketch on XY plane
sketch19 = body.newObject("Sketcher::SketchObject", "Sketch018")
sketch19.AttachmentSupport = (doc.getObject("XY_Plane"), [""])
sketch19.MapMode = "FlatFace"
sketch19.addGeometry(Part.Circle(App.Vector(9.5, 12, 0), App.Vector(0, 0, 1), 1.8), False)
sketch19.addGeometry(Part.Circle(App.Vector(-9.5, -12, 0), App.Vector(0, 0, 1), 1.8), False)
sketch19.addConstraint(Sketcher.Constraint("Equal", 0, 1))
sketch19.addConstraint(Sketcher.Constraint("Symmetric", 0, 3, 1, 3, -1, 1))
sketch19.addConstraint(Sketcher.Constraint("Diameter", 0, Q("3.5 mm")))
sketch19.addConstraint(Sketcher.Constraint("DistanceY", -1, 1, 0, 3, Q("12 mm")))
sketch19.addConstraint(Sketcher.Constraint("DistanceX", 1, 3, 0, 3, Q("19 mm")))
doc.recompute()
hole2 = body.newObject("PartDesign::Hole", "Hole001")
hole2.Profile = sketch19
hole2.ThreadType = "None"
hole2.Diameter = 3.5
hole2.DepthType = "Dimension"
hole2.Depth = 42.1
hole2.DrillPoint = "Flat"
hole2.HoleCutType = "Countersink"
hole2.HoleCutDiameter = 6.099894
hole2.HoleCutCountersinkAngle = 89.999002
hole2.Reversed = True
doc.recompute()

fillet = body.newObject("PartDesign::Fillet", "Fillet")
fillet.Base = (hole2, edges_at(hole2, [
    (13, 15.5, 1.05),
    (-13, 15.5, 1.05),
    (-13, -15.5, 1.05),
    (13, -15.5, 1.05),
]))
fillet.Radius = 3.5

doc.recompute()
